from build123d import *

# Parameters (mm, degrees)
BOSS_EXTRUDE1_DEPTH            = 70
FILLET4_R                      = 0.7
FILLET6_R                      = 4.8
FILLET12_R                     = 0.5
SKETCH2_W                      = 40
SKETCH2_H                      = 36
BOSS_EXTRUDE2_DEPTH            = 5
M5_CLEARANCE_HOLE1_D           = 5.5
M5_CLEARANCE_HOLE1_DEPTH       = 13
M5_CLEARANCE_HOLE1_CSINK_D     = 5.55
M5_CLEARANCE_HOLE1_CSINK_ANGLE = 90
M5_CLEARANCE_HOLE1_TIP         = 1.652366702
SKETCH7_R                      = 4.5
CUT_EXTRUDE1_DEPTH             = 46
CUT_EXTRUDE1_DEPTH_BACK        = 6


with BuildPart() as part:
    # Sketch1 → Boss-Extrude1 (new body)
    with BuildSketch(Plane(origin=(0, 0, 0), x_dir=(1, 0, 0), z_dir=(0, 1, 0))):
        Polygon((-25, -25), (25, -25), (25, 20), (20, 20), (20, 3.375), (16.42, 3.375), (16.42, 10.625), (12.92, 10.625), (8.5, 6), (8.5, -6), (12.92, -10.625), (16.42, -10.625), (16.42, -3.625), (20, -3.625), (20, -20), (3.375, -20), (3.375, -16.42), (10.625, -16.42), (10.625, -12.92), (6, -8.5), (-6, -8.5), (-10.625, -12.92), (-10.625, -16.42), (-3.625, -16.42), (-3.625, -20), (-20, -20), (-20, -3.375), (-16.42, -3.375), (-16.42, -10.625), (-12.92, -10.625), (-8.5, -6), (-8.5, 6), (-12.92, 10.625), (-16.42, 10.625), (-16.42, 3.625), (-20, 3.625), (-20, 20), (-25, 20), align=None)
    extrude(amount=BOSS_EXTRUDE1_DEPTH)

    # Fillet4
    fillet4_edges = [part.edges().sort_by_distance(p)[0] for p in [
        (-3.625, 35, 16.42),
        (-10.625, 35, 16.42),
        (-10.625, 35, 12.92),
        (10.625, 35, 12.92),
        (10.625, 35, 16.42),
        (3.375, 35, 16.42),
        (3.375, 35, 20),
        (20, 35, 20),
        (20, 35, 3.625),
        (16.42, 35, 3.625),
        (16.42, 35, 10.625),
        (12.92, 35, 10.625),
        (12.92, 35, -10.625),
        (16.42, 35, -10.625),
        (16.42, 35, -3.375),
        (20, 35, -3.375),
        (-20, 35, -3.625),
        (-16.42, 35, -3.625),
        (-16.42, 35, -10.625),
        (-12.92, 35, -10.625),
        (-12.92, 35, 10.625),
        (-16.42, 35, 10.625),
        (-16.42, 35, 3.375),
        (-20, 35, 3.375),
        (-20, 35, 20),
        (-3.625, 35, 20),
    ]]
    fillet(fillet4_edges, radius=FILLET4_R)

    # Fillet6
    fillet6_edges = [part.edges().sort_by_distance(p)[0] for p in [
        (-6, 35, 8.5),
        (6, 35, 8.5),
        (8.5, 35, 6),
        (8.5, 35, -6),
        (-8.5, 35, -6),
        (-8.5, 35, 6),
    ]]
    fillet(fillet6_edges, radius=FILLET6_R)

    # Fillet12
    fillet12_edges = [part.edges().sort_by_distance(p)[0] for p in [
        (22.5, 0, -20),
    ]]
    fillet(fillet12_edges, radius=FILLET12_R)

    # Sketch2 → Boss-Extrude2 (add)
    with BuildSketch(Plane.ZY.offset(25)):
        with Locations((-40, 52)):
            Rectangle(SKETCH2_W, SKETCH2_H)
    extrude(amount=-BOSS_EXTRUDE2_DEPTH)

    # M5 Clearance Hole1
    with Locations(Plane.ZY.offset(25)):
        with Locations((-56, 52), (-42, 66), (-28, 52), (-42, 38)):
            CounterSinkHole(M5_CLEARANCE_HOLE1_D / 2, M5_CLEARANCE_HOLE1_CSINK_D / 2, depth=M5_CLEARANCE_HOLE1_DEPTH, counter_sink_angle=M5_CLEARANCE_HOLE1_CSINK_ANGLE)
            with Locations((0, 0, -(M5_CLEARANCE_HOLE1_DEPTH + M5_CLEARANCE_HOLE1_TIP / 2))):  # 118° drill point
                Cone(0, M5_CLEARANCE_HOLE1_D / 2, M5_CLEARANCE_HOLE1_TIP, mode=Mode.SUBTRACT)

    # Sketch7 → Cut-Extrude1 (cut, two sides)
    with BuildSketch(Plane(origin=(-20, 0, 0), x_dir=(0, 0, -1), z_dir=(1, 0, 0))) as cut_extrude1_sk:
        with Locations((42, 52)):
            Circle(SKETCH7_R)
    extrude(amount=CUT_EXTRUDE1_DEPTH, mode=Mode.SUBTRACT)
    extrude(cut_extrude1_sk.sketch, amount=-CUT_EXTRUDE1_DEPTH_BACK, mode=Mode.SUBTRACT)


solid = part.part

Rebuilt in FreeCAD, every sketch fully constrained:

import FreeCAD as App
import Part
import Sketcher
from FreeCAD import Vector


def edges_at(feature, points):
    """Names of the edges that pass closest to the given points."""
    edges = feature.Shape.Edges
    near = lambda p: min(range(len(edges)), key=lambda i: edges[i].distToShape(Part.Vertex(*p))[0])
    return sorted({f"Edge{near(p) + 1}" for p in points})


def add_polygon(sketch, points):
    """Adds a closed chain of lines whose ends are joined by coincident constraints."""
    first, n = sketch.GeometryCount, len(points)
    for a, b in zip(points, points[1:] + points[:1]):
        sketch.addGeometry(Part.LineSegment(App.Vector(*a, 0), App.Vector(*b, 0)), False)
    for i in range(n):
        sketch.addConstraint(Sketcher.Constraint("Coincident", first + i, 2, first + (i + 1) % n, 1))

doc = App.newDocument("Part")
body = doc.addObject("PartDesign::Body", "Body")

# Sketch on XZ plane
sketch1 = doc.addObject("Sketcher::SketchObject", "Sketch")
body.addObject(sketch1)
sketch1.AttachmentSupport = (doc.XZ_Plane, [""])
sketch1.MapMode = "FlatFace"
add_polygon(sketch1, [(-25, 25), (25, 25), (25, -20), (20, -20), (20, -3.4), (16.4, -3.4), (16.4, -10.6), (12.9, -10.6), (8.5, -6), (8.5, 6), (12.9, 10.6), (16.4, 10.6), (16.4, 3.6), (20, 3.6), (20, 20), (3.4, 20), (3.4, 16.4), (10.6, 16.4), (10.6, 12.9), (6, 8.5), (-6, 8.5), (-10.6, 12.9), (-10.6, 16.4), (-3.6, 16.4), (-3.6, 20), (-20, 20), (-20, 3.4), (-16.4, 3.4), (-16.4, 10.6), (-12.9, 10.6), (-8.5, 6), (-8.5, -6), (-12.9, -10.6), (-16.4, -10.6), (-16.4, -3.6), (-20, -3.6), (-20, -20), (-25, -20)])  # lines 0-37
sketch1.addConstraint([
    Sketcher.Constraint("Horizontal", 0),
    Sketcher.Constraint("Vertical", 1),
    Sketcher.Constraint("Horizontal", 2),
    Sketcher.Constraint("Vertical", 3),
    Sketcher.Constraint("Horizontal", 4),
    Sketcher.Constraint("Vertical", 5),
    Sketcher.Constraint("Horizontal", 6),
    Sketcher.Constraint("Vertical", 8),
    Sketcher.Constraint("Horizontal", 10),
    Sketcher.Constraint("Vertical", 11),
    Sketcher.Constraint("Horizontal", 12),
    Sketcher.Constraint("Vertical", 13),
    Sketcher.Constraint("Horizontal", 14),
    Sketcher.Constraint("Vertical", 15),
    Sketcher.Constraint("Horizontal", 16),
    Sketcher.Constraint("Vertical", 17),
    Sketcher.Constraint("Horizontal", 19),
    Sketcher.Constraint("Vertical", 21),
    Sketcher.Constraint("Horizontal", 22),
    Sketcher.Constraint("Vertical", 23),
    Sketcher.Constraint("Horizontal", 24),
    Sketcher.Constraint("Vertical", 25),
    Sketcher.Constraint("Horizontal", 26),
    Sketcher.Constraint("Vertical", 27),
    Sketcher.Constraint("Horizontal", 28),
    Sketcher.Constraint("Vertical", 30),
    Sketcher.Constraint("Horizontal", 32),
    Sketcher.Constraint("Vertical", 33),
    Sketcher.Constraint("Horizontal", 34),
    Sketcher.Constraint("Vertical", 35),
    Sketcher.Constraint("Horizontal", 36),
    Sketcher.Constraint("Vertical", 37),
    Sketcher.Constraint("Symmetric", 2, 2, 24, 2, -1, 1),
    Sketcher.Constraint("Symmetric", 4, 2, 26, 2, -1, 1),
    Sketcher.Constraint("Symmetric", 6, 2, 28, 2, -1, 1),
    Sketcher.Constraint("Symmetric", 7, 2, 29, 2, -1, 1),
    Sketcher.Constraint("Symmetric", 9, 2, 31, 2, -1, 1),
    Sketcher.Constraint("Symmetric", 11, 2, 33, 2, -1, 1),
    Sketcher.Constraint("Symmetric", 13, 2, 35, 2, -1, 1),
    Sketcher.Constraint("Symmetric", 17, 2, 20, 2, -2),
    Sketcher.Constraint("Symmetric", 13, 2, 24, 2, -2),
    Sketcher.Constraint("Symmetric", 10, 2, 27, 2, -2),
    Sketcher.Constraint("Perpendicular", 7, 18),
    Sketcher.Constraint("Perpendicular", 9, 20),
    Sketcher.Constraint("Perpendicular", 20, 31),
    Sketcher.Constraint("Horizontal", 16, 2, 21, 2),
    Sketcher.Constraint("Horizontal", 8, 2, 29, 2),
    Sketcher.Constraint("Vertical", 6, 2, 9, 2),
    Sketcher.Constraint("Equal", 2, 36),
    Sketcher.Constraint("Equal", 14, 3),
    Sketcher.Constraint("Equal", 16, 5),
    Sketcher.Constraint("Equal", 19, 8),
    Sketcher.Constraint("Equal", 22, 11),
    Sketcher.Constraint("Equal", 34, 15),
    Sketcher.Constraint("Equal", 32, 17),
    Sketcher.Constraint("Equal", 9, 18),
    Sketcher.Constraint("DistanceX", 0, 1, 0, 2, 50.0),
    Sketcher.Constraint("DistanceX", 2, 2, 2, 1, 5.0),
    Sketcher.Constraint("DistanceX", 19, 2, 19, 1, 12.0),
    Sketcher.Constraint("DistanceX", 22, 1, 22, 2, 7.0),
    Sketcher.Constraint("DistanceY", 1, 2, 1, 1, 45.0),
    Sketcher.Constraint("DistanceX", 6, 2, 6, 1, 3.5),
    Sketcher.Constraint("DistanceY", 4, 2, 9, 2, 14.0),
    Sketcher.Constraint("DistanceX", 30, 2, 7, 2, 17.0),
    Sketcher.Constraint("DistanceX", 4, 2, 4, 1, 3.58),
    Sketcher.Constraint("DistanceX", 16, 1, 16, 2, 7.25),
])
pad1 = doc.addObject("PartDesign::Pad", "Pad")
body.addObject(pad1)
pad1.Profile = sketch1
pad1.Length = 70
pad1.Reversed = True
doc.recompute()

fillet = doc.addObject("PartDesign::Fillet", "Fillet")
body.addObject(fillet)
fillet.Base = (pad1, edges_at(pad1, [
    (-3.625, 35, 16.42),
    (-10.625, 35, 16.42),
    (-10.625, 35, 12.92),
    (10.625, 35, 12.92),
    (10.625, 35, 16.42),
    (3.375, 35, 16.42),
    (3.375, 35, 20),
    (20, 35, 20),
    (20, 35, 3.625),
    (16.42, 35, 3.625),
    (16.42, 35, 10.625),
    (12.92, 35, 10.625),
    (12.92, 35, -10.625),
    (16.42, 35, -10.625),
    (16.42, 35, -3.375),
    (20, 35, -3.375),
    (-20, 35, -3.625),
    (-16.42, 35, -3.625),
    (-16.42, 35, -10.625),
    (-12.92, 35, -10.625),
    (-12.92, 35, 10.625),
    (-16.42, 35, 10.625),
    (-16.42, 35, 3.375),
    (-20, 35, 3.375),
    (-20, 35, 20),
    (-3.625, 35, 20),
]))
fillet.Radius = 0.7
doc.recompute()

fillet2 = doc.addObject("PartDesign::Fillet", "Fillet001")
body.addObject(fillet2)
fillet2.Base = (fillet, edges_at(fillet, [
    (-6, 35, 8.5),
    (6, 35, 8.5),
    (8.5, 35, 6),
    (8.5, 35, -6),
    (-8.5, 35, -6),
    (-8.5, 35, 6),
]))
fillet2.Radius = 4.8
doc.recompute()

fillet3 = doc.addObject("PartDesign::Fillet", "Fillet002")
body.addObject(fillet3)
fillet3.Base = (fillet2, edges_at(fillet2, [(22.5, 0, -20)]))
fillet3.Radius = 0.5

# Sketch on YZ plane
sketch2 = doc.addObject("Sketcher::SketchObject", "Sketch001")
body.addObject(sketch2)
sketch2.AttachmentSupport = (doc.YZ_Plane, [""])
sketch2.MapMode = "FlatFace"
sketch2.AttachmentOffset = App.Placement(Vector(0, 0, -25), App.Rotation())
add_polygon(sketch2, [(70, -60), (34, -60), (34, -20), (70, -20)])  # lines 0-3
sketch2.addConstraint([
    Sketcher.Constraint("Horizontal", 0),
    Sketcher.Constraint("Vertical", 1),
    Sketcher.Constraint("Horizontal", 2),
    Sketcher.Constraint("Vertical", 3),
    Sketcher.Constraint("DistanceX", 0, 2, 0, 1, 36.0),
    Sketcher.Constraint("DistanceY", 1, 1, 1, 2, 40.0),
    Sketcher.Constraint("DistanceX", -1, 1, 0, 2, 34.0),
    Sketcher.Constraint("DistanceY", 0, 2, -1, 1, 60.0),
])
pad2 = doc.addObject("PartDesign::Pad", "Pad001")
body.addObject(pad2)
pad2.Profile = sketch2
pad2.Length = 5

# Sketch on YZ plane
sketch3 = doc.addObject("Sketcher::SketchObject", "Sketch002")
body.addObject(sketch3)
sketch3.AttachmentSupport = (doc.YZ_Plane, [""])
sketch3.MapMode = "FlatFace"
sketch3.AttachmentOffset = App.Placement(Vector(0, 0, -25), App.Rotation())
sketch3.addGeometry([
    Part.Circle(Vector(52, -56, 0), Vector(0, 0, 1), 2.8),
    Part.Circle(Vector(66, -42, 0), Vector(0, 0, 1), 2.8),
    Part.Circle(Vector(52, -28, 0), Vector(0, 0, 1), 2.8),
    Part.Circle(Vector(38, -42, 0), Vector(0, 0, 1), 2.8),
], False)
sketch3.addConstraint([
    Sketcher.Constraint("Equal", 0, 1),
    Sketcher.Constraint("Equal", 1, 2),
    Sketcher.Constraint("Equal", 2, 3),
    Sketcher.Constraint("Horizontal", 1, 3, 3, 3),
    Sketcher.Constraint("Vertical", 0, 3, 2, 3),
    Sketcher.Constraint("Diameter", 0, 5.5),
    Sketcher.Constraint("DistanceX", -1, 1, 0, 3, 52.0),
    Sketcher.Constraint("DistanceY", 0, 3, -1, 1, 56.0),
    Sketcher.Constraint("DistanceX", -1, 1, 1, 3, 66.0),
    Sketcher.Constraint("DistanceY", 1, 3, -1, 1, 42.0),
    Sketcher.Constraint("DistanceY", 2, 3, -1, 1, 28.0),
    Sketcher.Constraint("DistanceX", -1, 1, 3, 3, 38.0),
])
doc.recompute()
hole = doc.addObject("PartDesign::Hole", "Hole")
body.addObject(hole)
hole.Profile = sketch3
hole.ThreadType = "None"
hole.Diameter = 5.5
hole.DepthType = "Dimension"
hole.Depth = 13
hole.DrillPoint = "Angled"
hole.DrillPointAngle = 118
hole.HoleCutType = "Countersink"
hole.HoleCutDiameter = 5.55
hole.HoleCutCountersinkAngle = 90
hole.Reversed = True

# Sketch on YZ plane
sketch4 = doc.addObject("Sketcher::SketchObject", "Sketch003")
body.addObject(sketch4)
sketch4.AttachmentSupport = (doc.YZ_Plane, [""])
sketch4.MapMode = "FlatFace"
sketch4.AttachmentOffset = App.Placement(Vector(0, 0, -20), App.Rotation())
sketch4.addGeometry(Part.Circle(Vector(52, -42, 0), Vector(0, 0, 1), 4.5), False)
sketch4.addConstraint([
    Sketcher.Constraint("Diameter", 0, 9.0),
    Sketcher.Constraint("DistanceX", -1, 1, 0, 3, 52.0),
    Sketcher.Constraint("DistanceY", 0, 3, -1, 1, 42.0),
])
pocket1 = doc.addObject("PartDesign::Pocket", "Pocket")
body.addObject(pocket1)
pocket1.Profile = sketch4
pocket1.Type = "ThroughAll"
pocket1.Midplane = True

doc.recompute()
